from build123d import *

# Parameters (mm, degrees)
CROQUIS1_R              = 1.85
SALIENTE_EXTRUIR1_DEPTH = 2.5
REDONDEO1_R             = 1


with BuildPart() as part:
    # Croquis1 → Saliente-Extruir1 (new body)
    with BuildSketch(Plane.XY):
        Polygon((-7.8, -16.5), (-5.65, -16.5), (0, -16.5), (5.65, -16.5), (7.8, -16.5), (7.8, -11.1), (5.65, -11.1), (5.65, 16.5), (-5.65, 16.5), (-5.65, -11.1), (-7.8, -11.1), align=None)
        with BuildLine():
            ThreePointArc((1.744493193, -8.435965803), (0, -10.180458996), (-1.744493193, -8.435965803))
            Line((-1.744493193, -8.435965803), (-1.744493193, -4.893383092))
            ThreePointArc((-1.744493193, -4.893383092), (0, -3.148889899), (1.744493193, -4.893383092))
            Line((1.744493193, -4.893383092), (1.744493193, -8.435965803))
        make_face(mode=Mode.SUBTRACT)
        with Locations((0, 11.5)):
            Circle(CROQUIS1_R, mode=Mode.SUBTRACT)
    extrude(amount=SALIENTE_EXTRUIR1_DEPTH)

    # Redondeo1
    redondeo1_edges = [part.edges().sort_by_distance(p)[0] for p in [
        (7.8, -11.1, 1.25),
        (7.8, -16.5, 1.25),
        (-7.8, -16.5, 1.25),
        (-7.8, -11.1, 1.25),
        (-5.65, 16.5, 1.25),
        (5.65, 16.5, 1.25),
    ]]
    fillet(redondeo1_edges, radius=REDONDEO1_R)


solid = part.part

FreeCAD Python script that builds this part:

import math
import FreeCAD as App
import Part
import Sketcher

V = App.Vector
Q = App.Units.Quantity


def edges_at(feature, points):
    """Names of the edges that pass closest to the given points."""
    edges = feature.Shape.Edges
    near = lambda p: min(range(len(edges)), key=lambda i: edges[i].distToShape(Part.Vertex(*p))[0])
    return sorted({f"Edge{near(p) + 1}" for p in points})

doc = App.newDocument("Part")
body = doc.addObject("PartDesign::Body", "Body")

# Sketch on XY plane
sketch1 = body.newObject("Sketcher::SketchObject", "Sketch")
sketch1.AttachmentSupport = (doc.getObject("XY_Plane"), [""])
sketch1.MapMode = "FlatFace"
sketch1.addGeometry([
    Part.LineSegment(V(-7.8, -16.5, 0), V(7.8, -16.5, 0)),  # 0
    Part.LineSegment(V(7.8, -16.5, 0), V(7.8, -11.1, 0)),  # 1
    Part.LineSegment(V(7.8, -11.1, 0), V(5.7, -11.1, 0)),  # 2
    Part.LineSegment(V(5.7, -11.1, 0), V(5.7, 16.5, 0)),  # 3
    Part.LineSegment(V(5.7, 16.5, 0), V(-5.7, 16.5, 0)),  # 4
    Part.LineSegment(V(-5.7, 16.5, 0), V(-5.7, -11.1, 0)),  # 5
    Part.LineSegment(V(-5.7, -11.1, 0), V(-7.8, -11.1, 0)),  # 6
    Part.LineSegment(V(-7.8, -11.1, 0), V(-7.8, -16.5, 0)),  # 7
    Part.LineSegment(V(1.7, -4.9, 0), V(1.7, -8.4, 0)),  # 8
    Part.ArcOfCircle(Part.Circle(V(0, -8.4, 0), V(0, 0, 1), 1.7), math.radians(180), math.radians(360)),  # 9
    Part.LineSegment(V(-1.7, -8.4, 0), V(-1.7, -4.9, 0)),  # 10
    Part.ArcOfCircle(Part.Circle(V(0, -4.9, 0), V(0, 0, 1), 1.7), math.radians(0), math.radians(180)),  # 11
    Part.Circle(V(0, 11.5, 0), V(0, 0, 1), 1.9),  # 12
], False)
sketch1.addConstraint([
    Sketcher.Constraint("Coincident", 0, 2, 1, 1),
    Sketcher.Constraint("Coincident", 1, 2, 2, 1),
    Sketcher.Constraint("Coincident", 2, 2, 3, 1),
    Sketcher.Constraint("Coincident", 3, 2, 4, 1),
    Sketcher.Constraint("Coincident", 4, 2, 5, 1),
    Sketcher.Constraint("Coincident", 5, 2, 6, 1),
    Sketcher.Constraint("Coincident", 6, 2, 7, 1),
    Sketcher.Constraint("Coincident", 7, 2, 0, 1),
    Sketcher.Constraint("Tangent", 8, 2, 9, 2),
    Sketcher.Constraint("Tangent", 9, 1, 10, 1),
    Sketcher.Constraint("Tangent", 10, 2, 11, 2),
    Sketcher.Constraint("Tangent", 11, 1, 8, 1),
    Sketcher.Constraint("Horizontal", 0),
    Sketcher.Constraint("Vertical", 1),
    Sketcher.Constraint("Horizontal", 2),
    Sketcher.Constraint("Vertical", 3),
    Sketcher.Constraint("Horizontal", 4),
    Sketcher.Constraint("Vertical", 5),
    Sketcher.Constraint("Horizontal", 6),
    Sketcher.Constraint("Vertical", 7),
    Sketcher.Constraint("Vertical", 8),
    Sketcher.Constraint("Vertical", 10),
    Sketcher.Constraint("Symmetric", 2, 2, 5, 2, -2),
    Sketcher.Constraint("PointOnObject", 9, 3, -2),
    Sketcher.Constraint("PointOnObject", 12, 3, -2),
    Sketcher.Constraint("Equal", 2, 6),
    Sketcher.Constraint("Diameter", 12, Q("3.7 mm")),
    Sketcher.Constraint("DistanceX", 0, 1, 0, 2, Q("15.6 mm")),
    Sketcher.Constraint("DistanceX", 4, 2, 4, 1, Q("11.3 mm")),
    Sketcher.Constraint("DistanceY", 1, 1, 1, 2, Q("5.4 mm")),
    Sketcher.Constraint("DistanceY", 3, 1, 3, 2, Q("27.6 mm")),
    Sketcher.Constraint("DistanceY", 0, 2, 12, 3, Q("28 mm")),
    Sketcher.Constraint("DistanceY", -1, 1, 12, 3, Q("11.5 mm")),
    Sketcher.Constraint("Radius", 9, Q("1.744493 mm")),
    Sketcher.Constraint("DistanceY", 8, 2, 8, 1, Q("3.542583 mm")),
    Sketcher.Constraint("DistanceY", 9, 3, -1, 1, Q("8.435966 mm")),
])
pad1 = body.newObject("PartDesign::Pad", "Pad")
pad1.Profile = sketch1
pad1.Length = 2.5
doc.recompute()

fillet = body.newObject("PartDesign::Fillet", "Fillet")
fillet.Base = (pad1, edges_at(pad1, [
    (7.8, -11.1, 1.25),
    (7.8, -16.5, 1.25),
    (-7.8, -16.5, 1.25),
    (-7.8, -11.1, 1.25),
    (-5.65, 16.5, 1.25),
    (5.65, 16.5, 1.25),
]))
fillet.Radius = 1

doc.recompute()
